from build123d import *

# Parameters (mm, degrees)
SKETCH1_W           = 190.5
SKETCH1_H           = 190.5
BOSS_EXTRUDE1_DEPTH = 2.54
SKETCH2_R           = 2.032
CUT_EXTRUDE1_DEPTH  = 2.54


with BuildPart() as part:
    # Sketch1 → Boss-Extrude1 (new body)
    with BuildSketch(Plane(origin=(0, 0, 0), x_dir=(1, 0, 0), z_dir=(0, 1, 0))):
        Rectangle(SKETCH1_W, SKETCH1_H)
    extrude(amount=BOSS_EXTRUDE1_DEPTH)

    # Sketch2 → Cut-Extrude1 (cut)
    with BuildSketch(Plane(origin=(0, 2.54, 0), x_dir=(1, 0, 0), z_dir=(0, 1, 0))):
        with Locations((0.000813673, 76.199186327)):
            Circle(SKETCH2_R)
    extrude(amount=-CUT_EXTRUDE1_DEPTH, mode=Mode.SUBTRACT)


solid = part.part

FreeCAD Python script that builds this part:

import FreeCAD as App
import Part
import Sketcher

V = App.Vector
Q = App.Units.Quantity


def add_polygon(sketch, points):
    """Adds a closed chain of lines whose ends are joined by coincident constraints."""
    first, n = sketch.GeometryCount, len(points)
    for a, b in zip(points, points[1:] + points[:1]):
        sketch.addGeometry(Part.LineSegment(App.Vector(*a, 0), App.Vector(*b, 0)), False)
    for i in range(n):
        sketch.addConstraint(Sketcher.Constraint("Coincident", first + i, 2, first + (i + 1) % n, 1))

doc = App.newDocument("Part")
body = doc.addObject("PartDesign::Body", "Body")

# Sketch on XZ plane
sketch1 = body.newObject("Sketcher::SketchObject", "Sketch")
sketch1.AttachmentSupport = (doc.getObject("XZ_Plane"), [""])
sketch1.MapMode = "FlatFace"
add_polygon(sketch1, [(-95.25, -95.25), (-95.25, 95.25), (95.25, 95.25), (95.25, -95.25)])  # lines 0-3
sketch1.addConstraint([
    Sketcher.Constraint("Vertical", 0),
    Sketcher.Constraint("Horizontal", 1),
    Sketcher.Constraint("Vertical", 2),
    Sketcher.Constraint("Horizontal", 3),
    Sketcher.Constraint("Symmetric", 0, 2, 2, 2, -1, 1),
    Sketcher.Constraint("Equal", 3, 0),
    Sketcher.Constraint("DistanceX", 1, 1, 1, 2, Q("7.5 in")),
])
pad1 = body.newObject("PartDesign::Pad", "Pad")
pad1.Profile = sketch1
pad1.Length = Q("0.1 in")
pad1.Reversed = True

# Sketch on XZ plane
sketch2 = body.newObject("Sketcher::SketchObject", "Sketch001")
sketch2.AttachmentSupport = (doc.getObject("XZ_Plane"), [""])
sketch2.MapMode = "FlatFace"
sketch2.AttachmentOffset = App.Placement(V(0, 0, -0.1 * 25.4), App.Rotation())
sketch2.addGeometry(Part.Circle(V(0.000814, -76.199186, 0), V(0, 0, 1), 2.032), False)
sketch2.addConstraint([
    Sketcher.Constraint("Diameter", 0, Q("0.16 in")),
    Sketcher.Constraint("DistanceX", -1, 1, 0, 3, Q("0.000814 mm")),
    Sketcher.Constraint("DistanceY", 0, 3, -1, 1, Q("76.199186 mm")),
])
pocket1 = body.newObject("PartDesign::Pocket", "Pocket")
pocket1.Profile = sketch2
pocket1.Length = Q("0.1 in")
pocket1.Reversed = True

doc.recompute()
